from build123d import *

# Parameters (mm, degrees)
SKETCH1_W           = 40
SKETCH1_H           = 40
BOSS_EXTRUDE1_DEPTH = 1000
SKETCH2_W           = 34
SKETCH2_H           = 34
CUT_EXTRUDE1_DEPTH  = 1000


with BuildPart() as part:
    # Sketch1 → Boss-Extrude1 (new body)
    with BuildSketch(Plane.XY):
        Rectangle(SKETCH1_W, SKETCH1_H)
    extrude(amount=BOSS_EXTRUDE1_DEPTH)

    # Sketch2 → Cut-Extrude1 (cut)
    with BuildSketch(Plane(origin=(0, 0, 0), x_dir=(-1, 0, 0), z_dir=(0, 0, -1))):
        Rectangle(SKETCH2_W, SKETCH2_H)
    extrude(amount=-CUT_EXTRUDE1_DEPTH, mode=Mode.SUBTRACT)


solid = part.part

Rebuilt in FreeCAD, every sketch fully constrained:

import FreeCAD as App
import Part
import Sketcher

V = App.Vector
Q = App.Units.Quantity


def add_polygon(sketch, points):
    """Adds a closed chain of lines whose ends are joined by coincident constraints."""
    first, n = sketch.GeometryCount, len(points)
    for a, b in zip(points, points[1:] + points[:1]):
        sketch.addGeometry(Part.LineSegment(App.Vector(*a, 0), App.Vector(*b, 0)), False)
    for i in range(n):
        sketch.addConstraint(Sketcher.Constraint("Coincident", first + i, 2, first + (i + 1) % n, 1))

doc = App.newDocument("Part")
body = doc.addObject("PartDesign::Body", "Body")

# Sketch on XY plane
sketch1 = doc.addObject("Sketcher::SketchObject", "Sketch")
body.addObject(sketch1)
sketch1.AttachmentSupport = (doc.XY_Plane, [""])
sketch1.MapMode = "FlatFace"
add_polygon(sketch1, [(-20, 20), (-20, -20), (20, -20), (20, 20)])  # lines 0-3
sketch1.addConstraint([
    Sketcher.Constraint("Vertical", 0),
    Sketcher.Constraint("Horizontal", 1),
    Sketcher.Constraint("Vertical", 2),
    Sketcher.Constraint("Horizontal", 3),
    Sketcher.Constraint("Symmetric", 0, 2, 2, 2, -1, 1),
    Sketcher.Constraint("Equal", 3, 0),
    Sketcher.Constraint("DistanceX", 1, 1, 1, 2, Q("40 mm")),
])
pad1 = doc.addObject("PartDesign::Pad", "Pad")
body.addObject(pad1)
pad1.Profile = sketch1
pad1.Length = 1000

# Sketch on XY plane
sketch2 = doc.addObject("Sketcher::SketchObject", "Sketch001")
body.addObject(sketch2)
sketch2.AttachmentSupport = (doc.XY_Plane, [""])
sketch2.MapMode = "FlatFace"
add_polygon(sketch2, [(17, 17), (17, -17), (-17, -17), (-17, 17)])  # lines 0-3
sketch2.addConstraint([
    Sketcher.Constraint("Vertical", 0),
    Sketcher.Constraint("Horizontal", 1),
    Sketcher.Constraint("Vertical", 2),
    Sketcher.Constraint("Horizontal", 3),
    Sketcher.Constraint("Symmetric", 0, 2, 2, 2, -1, 1),
    Sketcher.Constraint("Equal", 3, 0),
    Sketcher.Constraint("DistanceX", 1, 2, 1, 1, Q("34 mm")),
])
pocket1 = doc.addObject("PartDesign::Pocket", "Pocket")
body.addObject(pocket1)
pocket1.Profile = sketch2
pocket1.Length = 1000
pocket1.Reversed = True

doc.recompute()
